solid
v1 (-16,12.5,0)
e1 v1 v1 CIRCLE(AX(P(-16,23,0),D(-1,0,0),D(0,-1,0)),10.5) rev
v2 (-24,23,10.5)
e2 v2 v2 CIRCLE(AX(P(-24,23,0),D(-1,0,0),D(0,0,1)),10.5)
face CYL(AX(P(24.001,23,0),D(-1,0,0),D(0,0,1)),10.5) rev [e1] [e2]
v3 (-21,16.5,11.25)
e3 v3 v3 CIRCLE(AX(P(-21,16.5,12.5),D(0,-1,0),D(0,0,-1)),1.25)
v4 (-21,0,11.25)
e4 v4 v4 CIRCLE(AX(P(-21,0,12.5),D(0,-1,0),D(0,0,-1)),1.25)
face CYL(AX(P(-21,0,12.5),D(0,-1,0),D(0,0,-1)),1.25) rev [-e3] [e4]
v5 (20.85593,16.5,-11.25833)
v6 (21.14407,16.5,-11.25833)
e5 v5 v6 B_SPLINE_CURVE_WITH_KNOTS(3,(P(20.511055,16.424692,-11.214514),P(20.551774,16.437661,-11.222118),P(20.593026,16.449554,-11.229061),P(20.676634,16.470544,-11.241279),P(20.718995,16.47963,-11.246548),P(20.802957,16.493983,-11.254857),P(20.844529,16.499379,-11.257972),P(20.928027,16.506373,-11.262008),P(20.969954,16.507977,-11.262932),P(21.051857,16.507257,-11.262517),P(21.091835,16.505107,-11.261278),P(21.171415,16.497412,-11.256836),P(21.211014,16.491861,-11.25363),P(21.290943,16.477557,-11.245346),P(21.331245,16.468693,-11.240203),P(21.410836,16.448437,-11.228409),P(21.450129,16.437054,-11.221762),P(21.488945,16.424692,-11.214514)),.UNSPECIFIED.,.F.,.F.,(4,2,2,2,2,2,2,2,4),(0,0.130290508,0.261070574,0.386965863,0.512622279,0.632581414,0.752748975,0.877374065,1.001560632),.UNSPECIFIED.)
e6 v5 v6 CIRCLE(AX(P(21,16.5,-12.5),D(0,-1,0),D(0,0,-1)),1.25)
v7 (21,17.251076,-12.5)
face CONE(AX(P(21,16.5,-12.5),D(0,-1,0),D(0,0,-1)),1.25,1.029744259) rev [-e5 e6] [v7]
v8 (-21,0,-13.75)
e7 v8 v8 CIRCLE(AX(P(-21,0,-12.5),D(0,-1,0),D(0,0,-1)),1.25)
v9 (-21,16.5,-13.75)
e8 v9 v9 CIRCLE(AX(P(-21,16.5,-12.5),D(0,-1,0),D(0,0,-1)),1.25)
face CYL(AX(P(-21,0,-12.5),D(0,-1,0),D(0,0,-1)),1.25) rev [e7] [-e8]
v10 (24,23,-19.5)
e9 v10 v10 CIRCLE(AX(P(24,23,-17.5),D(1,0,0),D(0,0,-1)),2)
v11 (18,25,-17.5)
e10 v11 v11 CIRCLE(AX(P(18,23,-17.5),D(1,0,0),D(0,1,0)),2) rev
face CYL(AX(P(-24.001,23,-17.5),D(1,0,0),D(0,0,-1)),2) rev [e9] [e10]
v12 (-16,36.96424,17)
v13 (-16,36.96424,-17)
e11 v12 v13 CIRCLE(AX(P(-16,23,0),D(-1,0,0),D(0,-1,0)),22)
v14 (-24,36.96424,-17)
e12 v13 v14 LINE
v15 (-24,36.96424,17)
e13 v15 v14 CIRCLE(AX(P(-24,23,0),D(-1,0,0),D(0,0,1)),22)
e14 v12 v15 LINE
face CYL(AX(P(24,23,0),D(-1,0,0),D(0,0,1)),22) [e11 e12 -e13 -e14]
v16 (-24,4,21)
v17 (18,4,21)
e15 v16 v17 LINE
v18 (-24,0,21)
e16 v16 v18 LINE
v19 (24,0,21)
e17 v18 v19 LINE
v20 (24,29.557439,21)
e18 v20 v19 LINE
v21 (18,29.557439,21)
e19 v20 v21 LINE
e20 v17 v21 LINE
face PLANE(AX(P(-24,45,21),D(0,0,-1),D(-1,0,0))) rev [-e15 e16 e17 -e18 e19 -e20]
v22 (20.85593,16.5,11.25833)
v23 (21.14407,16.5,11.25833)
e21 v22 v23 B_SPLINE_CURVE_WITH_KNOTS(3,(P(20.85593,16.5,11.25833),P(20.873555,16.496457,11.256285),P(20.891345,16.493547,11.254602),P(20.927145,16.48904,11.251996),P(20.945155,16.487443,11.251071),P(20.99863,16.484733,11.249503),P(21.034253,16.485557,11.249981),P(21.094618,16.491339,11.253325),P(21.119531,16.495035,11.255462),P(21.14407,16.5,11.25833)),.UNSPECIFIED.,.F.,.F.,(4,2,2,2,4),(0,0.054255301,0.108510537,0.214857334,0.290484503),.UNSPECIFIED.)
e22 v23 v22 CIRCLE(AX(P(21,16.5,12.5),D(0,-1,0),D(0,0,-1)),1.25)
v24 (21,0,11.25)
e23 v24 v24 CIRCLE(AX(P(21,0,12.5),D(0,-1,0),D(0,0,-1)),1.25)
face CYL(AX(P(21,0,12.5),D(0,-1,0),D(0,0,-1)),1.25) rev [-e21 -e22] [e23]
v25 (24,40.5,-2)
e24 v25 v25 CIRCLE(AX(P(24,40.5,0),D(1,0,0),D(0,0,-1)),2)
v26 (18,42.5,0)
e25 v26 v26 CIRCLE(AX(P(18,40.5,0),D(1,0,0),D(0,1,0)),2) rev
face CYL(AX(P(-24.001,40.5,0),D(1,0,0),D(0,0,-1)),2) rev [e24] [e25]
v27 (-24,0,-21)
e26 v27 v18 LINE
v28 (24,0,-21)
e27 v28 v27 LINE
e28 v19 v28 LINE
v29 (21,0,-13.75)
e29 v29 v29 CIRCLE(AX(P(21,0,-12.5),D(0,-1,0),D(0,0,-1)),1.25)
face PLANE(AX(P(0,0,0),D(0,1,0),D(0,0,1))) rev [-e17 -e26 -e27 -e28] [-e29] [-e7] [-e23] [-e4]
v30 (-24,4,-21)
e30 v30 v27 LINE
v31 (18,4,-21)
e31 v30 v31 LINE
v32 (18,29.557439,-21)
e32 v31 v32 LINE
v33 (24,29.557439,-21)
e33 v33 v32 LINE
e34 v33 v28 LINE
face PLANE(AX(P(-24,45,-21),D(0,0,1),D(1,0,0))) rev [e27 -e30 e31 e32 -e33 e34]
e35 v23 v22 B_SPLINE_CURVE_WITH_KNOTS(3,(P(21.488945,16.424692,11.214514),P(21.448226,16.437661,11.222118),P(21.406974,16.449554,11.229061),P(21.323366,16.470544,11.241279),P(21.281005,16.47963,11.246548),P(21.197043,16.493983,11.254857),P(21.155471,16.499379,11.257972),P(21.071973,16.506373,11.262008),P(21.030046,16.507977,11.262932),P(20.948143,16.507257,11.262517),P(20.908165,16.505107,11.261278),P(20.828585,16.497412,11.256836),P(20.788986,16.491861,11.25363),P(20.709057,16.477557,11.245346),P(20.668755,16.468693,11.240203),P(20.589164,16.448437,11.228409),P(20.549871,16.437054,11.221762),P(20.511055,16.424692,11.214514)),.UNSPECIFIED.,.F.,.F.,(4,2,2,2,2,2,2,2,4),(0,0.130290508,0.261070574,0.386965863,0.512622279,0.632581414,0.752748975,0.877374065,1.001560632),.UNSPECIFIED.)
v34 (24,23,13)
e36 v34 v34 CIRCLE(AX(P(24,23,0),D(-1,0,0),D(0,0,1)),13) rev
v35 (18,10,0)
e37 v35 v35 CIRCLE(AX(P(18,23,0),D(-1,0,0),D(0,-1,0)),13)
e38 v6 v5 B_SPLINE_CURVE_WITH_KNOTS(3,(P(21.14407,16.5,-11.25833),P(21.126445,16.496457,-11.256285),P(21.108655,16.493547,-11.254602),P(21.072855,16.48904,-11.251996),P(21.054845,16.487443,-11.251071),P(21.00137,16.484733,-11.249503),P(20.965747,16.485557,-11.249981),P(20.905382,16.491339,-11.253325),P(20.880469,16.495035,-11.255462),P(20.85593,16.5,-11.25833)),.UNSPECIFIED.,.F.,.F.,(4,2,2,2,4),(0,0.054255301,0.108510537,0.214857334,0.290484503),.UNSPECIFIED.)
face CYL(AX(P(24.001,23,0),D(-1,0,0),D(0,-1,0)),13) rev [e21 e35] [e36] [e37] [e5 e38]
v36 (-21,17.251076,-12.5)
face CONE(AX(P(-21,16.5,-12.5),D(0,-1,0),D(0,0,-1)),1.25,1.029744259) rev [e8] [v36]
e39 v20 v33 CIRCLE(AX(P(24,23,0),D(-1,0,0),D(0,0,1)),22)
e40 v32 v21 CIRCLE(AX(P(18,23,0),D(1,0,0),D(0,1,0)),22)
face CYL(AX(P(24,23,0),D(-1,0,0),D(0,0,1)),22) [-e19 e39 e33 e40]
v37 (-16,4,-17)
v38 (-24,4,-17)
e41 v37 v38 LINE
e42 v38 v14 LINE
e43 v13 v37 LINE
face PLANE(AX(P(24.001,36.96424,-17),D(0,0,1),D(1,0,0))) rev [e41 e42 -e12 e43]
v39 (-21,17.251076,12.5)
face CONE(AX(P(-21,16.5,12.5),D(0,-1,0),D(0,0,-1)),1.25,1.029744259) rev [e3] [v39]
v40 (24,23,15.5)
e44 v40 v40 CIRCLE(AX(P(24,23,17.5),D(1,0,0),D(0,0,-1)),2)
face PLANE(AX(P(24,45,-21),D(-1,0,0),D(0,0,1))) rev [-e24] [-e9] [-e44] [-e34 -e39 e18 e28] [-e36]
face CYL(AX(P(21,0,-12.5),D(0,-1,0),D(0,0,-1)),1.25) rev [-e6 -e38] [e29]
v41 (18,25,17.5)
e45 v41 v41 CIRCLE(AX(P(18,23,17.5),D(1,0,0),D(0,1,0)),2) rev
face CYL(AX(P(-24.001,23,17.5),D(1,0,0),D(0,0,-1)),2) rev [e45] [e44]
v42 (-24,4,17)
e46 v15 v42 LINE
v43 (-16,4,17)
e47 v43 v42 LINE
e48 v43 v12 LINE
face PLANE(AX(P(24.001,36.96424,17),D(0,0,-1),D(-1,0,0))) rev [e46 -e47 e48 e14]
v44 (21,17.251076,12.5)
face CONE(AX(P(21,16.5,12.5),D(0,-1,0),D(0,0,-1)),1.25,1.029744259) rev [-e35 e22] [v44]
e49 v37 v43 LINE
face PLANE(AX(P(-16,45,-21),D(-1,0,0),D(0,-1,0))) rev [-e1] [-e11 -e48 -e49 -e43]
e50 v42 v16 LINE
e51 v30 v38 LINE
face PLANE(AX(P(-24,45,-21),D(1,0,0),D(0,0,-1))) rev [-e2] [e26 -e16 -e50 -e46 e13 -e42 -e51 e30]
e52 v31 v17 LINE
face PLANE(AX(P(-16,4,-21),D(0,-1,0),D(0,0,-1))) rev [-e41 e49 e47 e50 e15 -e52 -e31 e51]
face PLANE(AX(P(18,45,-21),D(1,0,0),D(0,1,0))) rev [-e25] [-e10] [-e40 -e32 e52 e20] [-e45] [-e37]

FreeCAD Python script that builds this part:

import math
import FreeCAD as App
import Part
import Sketcher

V = App.Vector


def add_polygon(sketch, points):
    """Adds a closed chain of lines whose ends are joined by coincident constraints."""
    first, n = sketch.GeometryCount, len(points)
    for a, b in zip(points, points[1:] + points[:1]):
        sketch.addGeometry(Part.LineSegment(App.Vector(*a, 0), App.Vector(*b, 0)), False)
    for i in range(n):
        sketch.addConstraint(Sketcher.Constraint("Coincident", first + i, 2, first + (i + 1) % n, 1))

doc = App.newDocument("Part")
body = doc.addObject("PartDesign::Body", "Body")

# Sketch on XZ plane
sketch1 = body.newObject("Sketcher::SketchObject", "Sketch")
sketch1.AttachmentSupport = (doc.getObject("XZ_Plane"), [""])
sketch1.MapMode = "FlatFace"
add_polygon(sketch1, [(-24, -21), (-24, 21), (24, 21), (24, -21)])  # lines 0-3
sketch1.addConstraint(Sketcher.Constraint("Vertical", 0))
sketch1.addConstraint(Sketcher.Constraint("Horizontal", 1))
sketch1.addConstraint(Sketcher.Constraint("Vertical", 2))
sketch1.addConstraint(Sketcher.Constraint("Horizontal", 3))
sketch1.addConstraint(Sketcher.Constraint("Symmetric", 0, 2, 2, 2, -1, 1))
sketch1.addConstraint(Sketcher.Constraint("DistanceX", 1, 1, 1, 2, 48.0))
sketch1.addConstraint(Sketcher.Constraint("DistanceY", 0, 1, 0, 2, 42.0))
pad1 = body.newObject("PartDesign::Pad", "Pad")
pad1.Profile = sketch1
pad1.Length = 45
pad1.Reversed = True

# Sketch on XY plane
sketch2 = body.newObject("Sketcher::SketchObject", "Sketch001")
sketch2.AttachmentSupport = (doc.getObject("XY_Plane"), [""])
sketch2.MapMode = "FlatFace"
add_polygon(sketch2, [(-16, 45), (-16, 4), (18, 4), (18, 45)])  # lines 0-3
sketch2.addConstraint(Sketcher.Constraint("Vertical", 0))
sketch2.addConstraint(Sketcher.Constraint("Horizontal", 1))
sketch2.addConstraint(Sketcher.Constraint("Vertical", 2))
sketch2.addConstraint(Sketcher.Constraint("Horizontal", 3))
sketch2.addConstraint(Sketcher.Constraint("DistanceX", 1, 1, 1, 2, 34.0))
sketch2.addConstraint(Sketcher.Constraint("DistanceY", 0, 2, 0, 1, 41.0))
sketch2.addConstraint(Sketcher.Constraint("DistanceX", 0, 2, -1, 1, 16.0))
sketch2.addConstraint(Sketcher.Constraint("DistanceY", -1, 1, 0, 2, 4.0))
pocket1 = body.newObject("PartDesign::Pocket", "Pocket")
pocket1.Profile = sketch2
pocket1.Type = "ThroughAll"
pocket1.Midplane = True

# Sketch on YZ plane
sketch3 = body.newObject("Sketcher::SketchObject", "Sketch002")
sketch3.AttachmentSupport = (doc.getObject("YZ_Plane"), [""])
sketch3.MapMode = "FlatFace"
sketch3.AttachmentOffset = App.Placement(V(0, 0, -24), App.Rotation())
sketch3.addGeometry(Part.Circle(V(23, 0, 0), V(0, 0, 1), 10), False)
sketch3.addConstraint(Sketcher.Constraint("PointOnObject", 0, 3, -1))
sketch3.addConstraint(Sketcher.Constraint("Diameter", 0, 21.0))
sketch3.addConstraint(Sketcher.Constraint("DistanceX", -1, 1, 0, 3, 23.0))
pocket2 = body.newObject("PartDesign::Pocket", "Pocket001")
pocket2.Profile = sketch3
pocket2.Type = "UpToFirst"
pocket2.Reversed = True

# Sketch on YZ plane
sketch4 = body.newObject("Sketcher::SketchObject", "Sketch003")
sketch4.AttachmentSupport = (doc.getObject("YZ_Plane"), [""])
sketch4.MapMode = "FlatFace"
sketch4.AttachmentOffset = App.Placement(V(0, 0, 18), App.Rotation())
sketch4.addGeometry(Part.Circle(V(23, 0, 0), V(0, 0, 1), 13), False)
sketch4.addConstraint(Sketcher.Constraint("PointOnObject", 0, 3, -1))
sketch4.addConstraint(Sketcher.Constraint("Diameter", 0, 26.0))
sketch4.addConstraint(Sketcher.Constraint("DistanceX", -1, 1, 0, 3, 23.0))
pocket3 = body.newObject("PartDesign::Pocket", "Pocket002")
pocket3.Profile = sketch4
pocket3.Type = "UpToFirst"
pocket3.Reversed = True

# Sketch on YZ plane
sketch5 = body.newObject("Sketcher::SketchObject", "Sketch004")
sketch5.AttachmentSupport = (doc.getObject("YZ_Plane"), [""])
sketch5.MapMode = "FlatFace"
sketch5.AttachmentOffset = App.Placement(V(0, 0, 24), App.Rotation())
sketch5.addGeometry(Part.Circle(V(23, -17.5, 0), V(0, 0, 1), 2), False)
sketch5.addConstraint(Sketcher.Constraint("Diameter", 0, 4.0))
sketch5.addConstraint(Sketcher.Constraint("DistanceX", -1, 1, 0, 3, 23.0))
sketch5.addConstraint(Sketcher.Constraint("DistanceY", 0, 3, -1, 1, 17.5))
pocket4 = body.newObject("PartDesign::Pocket", "Pocket003")
pocket4.Profile = sketch5
pocket4.Type = "UpToFirst"

# Sketch on YZ plane
sketch6 = body.newObject("Sketcher::SketchObject", "Sketch005")
sketch6.AttachmentSupport = (doc.getObject("YZ_Plane"), [""])
sketch6.MapMode = "FlatFace"
sketch6.AttachmentOffset = App.Placement(V(0, 0, 24), App.Rotation())
sketch6.addGeometry(Part.Circle(V(23, 17.5, 0), V(0, 0, 1), 2), False)
sketch6.addConstraint(Sketcher.Constraint("Diameter", 0, 4.0))
sketch6.addConstraint(Sketcher.Constraint("DistanceX", -1, 1, 0, 3, 23.0))
sketch6.addConstraint(Sketcher.Constraint("DistanceY", -1, 1, 0, 3, 17.5))
pocket5 = body.newObject("PartDesign::Pocket", "Pocket004")
pocket5.Profile = sketch6
pocket5.Type = "UpToFirst"

# Sketch on YZ plane
sketch7 = body.newObject("Sketcher::SketchObject", "Sketch006")
sketch7.AttachmentSupport = (doc.getObject("YZ_Plane"), [""])
sketch7.MapMode = "FlatFace"
sketch7.AttachmentOffset = App.Placement(V(0, 0, 24), App.Rotation())
sketch7.addGeometry(Part.Circle(V(40.5, 0, 0), V(0, 0, 1), 2), False)
sketch7.addConstraint(Sketcher.Constraint("PointOnObject", 0, 3, -1))
sketch7.addConstraint(Sketcher.Constraint("Diameter", 0, 4.0))
sketch7.addConstraint(Sketcher.Constraint("DistanceX", -1, 1, 0, 3, 40.5))
pocket6 = body.newObject("PartDesign::Pocket", "Pocket005")
pocket6.Profile = sketch7
pocket6.Type = "UpToFirst"

# Sketch on YZ plane
sketch8 = body.newObject("Sketcher::SketchObject", "Sketch007")
sketch8.AttachmentSupport = (doc.getObject("YZ_Plane"), [""])
sketch8.MapMode = "FlatFace"
sketch8.AttachmentOffset = App.Placement(V(0, 0, -24), App.Rotation())
sketch8.addGeometry(Part.ArcOfCircle(Part.Circle(V(23, 0, 0), V(0, 0, 1), 22), math.radians(0), math.radians(73)), False)
sketch8.addGeometry(Part.LineSegment(V(30, 21, 0), V(45, 21, 0)), False)
sketch8.addGeometry(Part.LineSegment(V(45, 21, 0), V(45, 0, 0)), False)
sketch8.addGeometry(Part.ArcOfCircle(Part.Circle(V(23, 0, 0), V(0, 0, 1), 22), math.radians(-73), math.radians(0)), False)
sketch8.addGeometry(Part.LineSegment(V(45, 0, 0), V(45, -21, 0)), False)
sketch8.addGeometry(Part.LineSegment(V(45, -21, 0), V(30, -21, 0)), False)
sketch8.addConstraint(Sketcher.Constraint("Coincident", 0, 2, 1, 1))
sketch8.addConstraint(Sketcher.Constraint("Coincident", 1, 2, 2, 1))
sketch8.addConstraint(Sketcher.Constraint("Tangent", 2, 2, 0, 1))
sketch8.addConstraint(Sketcher.Constraint("Tangent", 3, 2, 4, 1))
sketch8.addConstraint(Sketcher.Constraint("Coincident", 4, 2, 5, 1))
sketch8.addConstraint(Sketcher.Constraint("Coincident", 5, 2, 3, 1))
sketch8.addConstraint(Sketcher.Constraint("Horizontal", 1))
sketch8.addConstraint(Sketcher.Constraint("Vertical", 2))
sketch8.addConstraint(Sketcher.Constraint("Vertical", 4))
sketch8.addConstraint(Sketcher.Constraint("Horizontal", 5))
sketch8.addConstraint(Sketcher.Constraint("Coincident", 3, 3, 0, 3))
sketch8.addConstraint(Sketcher.Constraint("Equal", 0, 3))
sketch8.addConstraint(Sketcher.Constraint("Symmetric", 0, 2, 5, 2, -1))
sketch8.addConstraint(Sketcher.Constraint("Radius", 0, 22.0))
sketch8.addConstraint(Sketcher.Constraint("DistanceY", 2, 2, 2, 1, 21.0))
sketch8.addConstraint(Sketcher.Constraint("DistanceX", -1, 1, 0, 3, 23.0))
pocket7 = body.newObject("PartDesign::Pocket", "Pocket006")
pocket7.Profile = sketch8
pocket7.Type = "ThroughAll"
pocket7.Reversed = True

# Sketch on YZ plane
sketch9 = body.newObject("Sketcher::SketchObject", "Sketch008")
sketch9.AttachmentSupport = (doc.getObject("YZ_Plane"), [""])
sketch9.MapMode = "FlatFace"
sketch9.AttachmentOffset = App.Placement(V(0, 0, -24), App.Rotation())
sketch9.addGeometry(Part.LineSegment(V(4, -17, 0), V(37, -17, 0)), False)
sketch9.addGeometry(Part.ArcOfCircle(Part.Circle(V(23, 0, 0), V(0, 0, 1), 22), math.radians(-73), math.radians(-51)), False)
sketch9.addGeometry(Part.LineSegment(V(29.6, -21, 0), V(4, -21, 0)), False)
sketch9.addGeometry(Part.LineSegment(V(4, -21, 0), V(4, -17, 0)), False)
sketch9.addConstraint(Sketcher.Constraint("Coincident", 0, 2, 1, 2))
sketch9.addConstraint(Sketcher.Constraint("Coincident", 1, 1, 2, 1))
sketch9.addConstraint(Sketcher.Constraint("Coincident", 2, 2, 3, 1))
sketch9.addConstraint(Sketcher.Constraint("Coincident", 3, 2, 0, 1))
sketch9.addConstraint(Sketcher.Constraint("Horizontal", 0))
sketch9.addConstraint(Sketcher.Constraint("Horizontal", 2))
sketch9.addConstraint(Sketcher.Constraint("Vertical", 3))
sketch9.addConstraint(Sketcher.Constraint("PointOnObject", 1, 3, -1))
sketch9.addConstraint(Sketcher.Constraint("Radius", 1, 22.0))
sketch9.addConstraint(Sketcher.Constraint("DistanceY", 3, 1, 3, 2, 4.0))
sketch9.addConstraint(Sketcher.Constraint("DistanceX", -1, 1, 1, 3, 23.0))
sketch9.addConstraint(Sketcher.Constraint("DistanceY", 0, 2, -1, 1, 17.0))
sketch9.addConstraint(Sketcher.Constraint("DistanceX", -1, 1, 2, 2, 4.0))
pocket8 = body.newObject("PartDesign::Pocket", "Pocket007")
pocket8.Profile = sketch9
pocket8.Type = "UpToFirst"
pocket8.Reversed = True

# Sketch on YZ plane
sketch10 = body.newObject("Sketcher::SketchObject", "Sketch009")
sketch10.AttachmentSupport = (doc.getObject("YZ_Plane"), [""])
sketch10.MapMode = "FlatFace"
sketch10.AttachmentOffset = App.Placement(V(0, 0, -24), App.Rotation())
sketch10.addGeometry(Part.LineSegment(V(4, 21, 0), V(29.6, 21, 0)), False)
sketch10.addGeometry(Part.ArcOfCircle(Part.Circle(V(23, 0, 0), V(0, 0, 1), 22), math.radians(51), math.radians(73)), False)
sketch10.addGeometry(Part.LineSegment(V(37, 17, 0), V(4, 17, 0)), False)
sketch10.addGeometry(Part.LineSegment(V(4, 17, 0), V(4, 21, 0)), False)
sketch10.addConstraint(Sketcher.Constraint("Coincident", 0, 2, 1, 2))
sketch10.addConstraint(Sketcher.Constraint("Coincident", 1, 1, 2, 1))
sketch10.addConstraint(Sketcher.Constraint("Coincident", 2, 2, 3, 1))
sketch10.addConstraint(Sketcher.Constraint("Coincident", 3, 2, 0, 1))
sketch10.addConstraint(Sketcher.Constraint("Horizontal", 0))
sketch10.addConstraint(Sketcher.Constraint("Horizontal", 2))
sketch10.addConstraint(Sketcher.Constraint("Vertical", 3))
sketch10.addConstraint(Sketcher.Constraint("PointOnObject", 1, 3, -1))
sketch10.addConstraint(Sketcher.Constraint("Radius", 1, 22.0))
sketch10.addConstraint(Sketcher.Constraint("DistanceY", 3, 1, 3, 2, 4.0))
sketch10.addConstraint(Sketcher.Constraint("DistanceX", -1, 1, 1, 3, 23.0))
sketch10.addConstraint(Sketcher.Constraint("DistanceY", -1, 1, 0, 2, 21.0))
sketch10.addConstraint(Sketcher.Constraint("DistanceX", -1, 1, 2, 2, 4.0))
pocket9 = body.newObject("PartDesign::Pocket", "Pocket008")
pocket9.Profile = sketch10
pocket9.Type = "UpToFirst"
pocket9.Reversed = True

# Sketch on XZ plane
sketch11 = body.newObject("Sketcher::SketchObject", "Sketch010")
sketch11.AttachmentSupport = (doc.getObject("XZ_Plane"), [""])
sketch11.MapMode = "FlatFace"
sketch11.addGeometry(Part.Circle(V(21, -12.5, 0), V(0, 0, 1), 1.2), False)
sketch11.addGeometry(Part.Circle(V(21, 12.5, 0), V(0, 0, 1), 1.2), False)
sketch11.addGeometry(Part.Circle(V(-21, 12.5, 0), V(0, 0, 1), 1.2), False)
sketch11.addGeometry(Part.Circle(V(-21, -12.5, 0), V(0, 0, 1), 1.2), False)
sketch11.addConstraint(Sketcher.Constraint("Equal", 0, 1))
sketch11.addConstraint(Sketcher.Constraint("Equal", 1, 2))
sketch11.addConstraint(Sketcher.Constraint("Equal", 2, 3))
sketch11.addConstraint(Sketcher.Constraint("Symmetric", 0, 3, 2, 3, -1, 1))
sketch11.addConstraint(Sketcher.Constraint("Symmetric", 1, 3, 3, 3, -1, 1))
sketch11.addConstraint(Sketcher.Constraint("Symmetric", 1, 3, 2, 3, -2))
sketch11.addConstraint(Sketcher.Constraint("Diameter", 0, 2.5))
sketch11.addConstraint(Sketcher.Constraint("DistanceX", -1, 1, 0, 3, 21.0))
sketch11.addConstraint(Sketcher.Constraint("DistanceY", 0, 3, 1, 3, 25.0))
doc.recompute()
hole = body.newObject("PartDesign::Hole", "Hole")
hole.Profile = sketch11
hole.ThreadType = "None"
hole.Diameter = 2.5
hole.DepthType = "Dimension"
hole.Depth = 16.5
hole.DrillPoint = "Angled"
hole.DrillPointAngle = 118

doc.recompute()
